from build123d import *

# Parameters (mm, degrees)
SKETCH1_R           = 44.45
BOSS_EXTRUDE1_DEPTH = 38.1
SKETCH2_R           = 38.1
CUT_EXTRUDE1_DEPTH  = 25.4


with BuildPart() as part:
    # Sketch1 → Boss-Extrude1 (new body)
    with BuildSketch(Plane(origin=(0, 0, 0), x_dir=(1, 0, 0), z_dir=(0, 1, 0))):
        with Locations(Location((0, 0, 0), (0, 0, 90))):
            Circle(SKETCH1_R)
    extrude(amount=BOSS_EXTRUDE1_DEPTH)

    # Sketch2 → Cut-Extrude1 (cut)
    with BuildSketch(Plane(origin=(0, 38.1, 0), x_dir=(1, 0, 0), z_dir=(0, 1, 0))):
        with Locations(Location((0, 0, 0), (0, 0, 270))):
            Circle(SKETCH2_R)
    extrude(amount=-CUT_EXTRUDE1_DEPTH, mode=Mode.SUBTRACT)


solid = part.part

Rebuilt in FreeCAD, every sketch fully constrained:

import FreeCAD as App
import Part
import Sketcher
from FreeCAD import Vector
Q = App.Units.Quantity

doc = App.newDocument("Part")
body = doc.addObject("PartDesign::Body", "Body")

sketch1 = body.newObject("Sketcher::SketchObject", "Sketch")
sketch1.AttachmentSupport = (doc.getObject("XZ_Plane"), [""])
sketch1.MapMode = "FlatFace"
sketch1.addGeometry(Part.Circle(Vector(0, 0, 0), Vector(0, 0, 1), 44), False)
sketch1.addConstraint(Sketcher.Constraint("Coincident", 0, 3, -1, 1))
sketch1.addConstraint(Sketcher.Constraint("Diameter", 0, Q("3.5 in")))
pad1 = body.newObject("PartDesign::Pad", "Pad")
pad1.Profile = sketch1
pad1.Length = Q("1.5 in")
pad1.Reversed = True

sketch2 = body.newObject("Sketcher::SketchObject", "Sketch001")
sketch2.AttachmentSupport = (doc.getObject("XZ_Plane"), [""])
sketch2.MapMode = "FlatFace"
sketch2.AttachmentOffset = App.Placement(Vector(0, 0, -1.5 * 25.4), App.Rotation())
sketch2.addGeometry(Part.Circle(Vector(0, 0, 0), Vector(0, 0, 1), 38), False)
sketch2.addConstraint(Sketcher.Constraint("Coincident", 0, 3, -1, 1))
sketch2.addConstraint(Sketcher.Constraint("Diameter", 0, Q("3 in")))
pocket1 = body.newObject("PartDesign::Pocket", "Pocket")
pocket1.Profile = sketch2
pocket1.Length = Q("1 in")
pocket1.Reversed = True

doc.recompute()
